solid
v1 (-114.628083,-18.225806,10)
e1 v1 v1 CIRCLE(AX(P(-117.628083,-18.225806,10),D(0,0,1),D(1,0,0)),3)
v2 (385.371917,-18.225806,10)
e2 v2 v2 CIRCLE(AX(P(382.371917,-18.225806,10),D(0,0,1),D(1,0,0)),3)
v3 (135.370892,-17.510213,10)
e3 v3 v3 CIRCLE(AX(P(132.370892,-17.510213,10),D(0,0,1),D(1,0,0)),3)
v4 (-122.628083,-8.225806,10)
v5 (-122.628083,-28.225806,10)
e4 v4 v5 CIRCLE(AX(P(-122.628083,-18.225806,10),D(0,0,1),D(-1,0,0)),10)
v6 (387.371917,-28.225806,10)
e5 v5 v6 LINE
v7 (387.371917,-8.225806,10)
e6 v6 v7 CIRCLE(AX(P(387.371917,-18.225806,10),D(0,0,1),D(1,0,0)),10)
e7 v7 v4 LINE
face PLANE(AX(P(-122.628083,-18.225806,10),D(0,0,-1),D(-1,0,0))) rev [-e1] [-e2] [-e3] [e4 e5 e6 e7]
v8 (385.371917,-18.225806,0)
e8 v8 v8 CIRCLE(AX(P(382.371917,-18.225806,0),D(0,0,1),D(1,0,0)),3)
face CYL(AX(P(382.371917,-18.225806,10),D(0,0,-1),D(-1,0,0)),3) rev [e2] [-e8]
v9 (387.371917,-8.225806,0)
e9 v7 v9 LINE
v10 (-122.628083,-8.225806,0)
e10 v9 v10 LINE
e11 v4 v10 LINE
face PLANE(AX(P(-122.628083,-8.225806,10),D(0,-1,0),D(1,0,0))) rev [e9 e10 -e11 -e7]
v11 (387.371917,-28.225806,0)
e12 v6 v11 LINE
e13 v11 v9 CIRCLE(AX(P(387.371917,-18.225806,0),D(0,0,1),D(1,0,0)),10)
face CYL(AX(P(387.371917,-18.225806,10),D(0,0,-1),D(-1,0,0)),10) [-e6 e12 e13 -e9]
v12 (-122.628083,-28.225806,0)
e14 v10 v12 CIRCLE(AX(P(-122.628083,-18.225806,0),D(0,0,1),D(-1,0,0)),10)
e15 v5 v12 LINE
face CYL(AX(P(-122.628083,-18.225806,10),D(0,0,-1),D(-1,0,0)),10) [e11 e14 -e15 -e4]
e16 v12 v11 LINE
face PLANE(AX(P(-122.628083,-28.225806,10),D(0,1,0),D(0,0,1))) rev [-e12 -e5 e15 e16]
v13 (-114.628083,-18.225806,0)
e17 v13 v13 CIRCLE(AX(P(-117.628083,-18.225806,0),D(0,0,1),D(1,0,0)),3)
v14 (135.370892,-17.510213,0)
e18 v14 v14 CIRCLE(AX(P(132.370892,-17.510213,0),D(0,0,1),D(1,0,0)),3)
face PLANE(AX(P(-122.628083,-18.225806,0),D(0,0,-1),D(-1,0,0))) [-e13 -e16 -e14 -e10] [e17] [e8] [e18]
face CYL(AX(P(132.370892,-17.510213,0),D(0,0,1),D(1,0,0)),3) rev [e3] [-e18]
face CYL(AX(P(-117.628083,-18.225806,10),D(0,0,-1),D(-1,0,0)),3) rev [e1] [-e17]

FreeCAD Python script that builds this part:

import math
import FreeCAD as App
import Part
import Sketcher

doc = App.newDocument("Part")
params = doc.addObject("Spreadsheet::Sheet", "Params")
for row, (alias, value) in enumerate([
    ("sketch1_diameter", "6 mm"),
    ("sketch1_radius", "10 mm"),
    ("sketch1_width", "510 mm"),
    ("pad1_length", "10 mm"),
    ("sketch2_diameter", "6 mm"),
    ("pocket1_length", "10 mm"),
], start=1):
    params.set(f"A{row}", alias)
    params.set(f"B{row}", "=" + value)
    params.setAlias(f"B{row}", alias)

body = doc.addObject("PartDesign::Body", "Body")

# Sketch on XY plane
sketch1 = doc.addObject("Sketcher::SketchObject", "Sketch")
body.addObject(sketch1)
sketch1.AttachmentSupport = (doc.XY_Plane, [""])
sketch1.MapMode = "FlatFace"
sketch1.addGeometry([
    Part.LineSegment(App.Vector(387.371917, -8.225806, 0), App.Vector(-122.628083, -8.225806, 0)),  # 0
    Part.ArcOfCircle(Part.Circle(App.Vector(-122.628083, -18.225806, 0), App.Vector(0, 0, 1), 10), math.radians(90), math.radians(270)),  # 1
    Part.LineSegment(App.Vector(-122.628083, -28.225806, 0), App.Vector(387.371917, -28.225806, 0)),  # 2
    Part.ArcOfCircle(Part.Circle(App.Vector(387.371917, -18.225806, 0), App.Vector(0, 0, 1), 10), math.radians(-90), math.radians(90)),  # 3
    Part.Circle(App.Vector(382.371917, -18.225806, 0), App.Vector(0, 0, 1), 3),  # 4
    Part.Circle(App.Vector(-117.628083, -18.225806, 0), App.Vector(0, 0, 1), 3),  # 5
], False)
sketch1.addConstraint([
    Sketcher.Constraint("Tangent", 0, 2, 1, 1),
    Sketcher.Constraint("Tangent", 1, 2, 2, 1),
    Sketcher.Constraint("Tangent", 2, 2, 3, 1),
    Sketcher.Constraint("Tangent", 3, 2, 0, 1),
    Sketcher.Constraint("Horizontal", 0),
    Sketcher.Constraint("Horizontal", 2),
    Sketcher.Constraint("Equal", 4, 5),
    Sketcher.Constraint("Horizontal", 3, 3, 4, 3),
    Sketcher.Constraint("Horizontal", 4, 3, 5, 3),
    Sketcher.Constraint("Diameter", 4, 6.0),
    Sketcher.Constraint("Radius", 1, 10.0),
    Sketcher.Constraint("DistanceX", 0, 2, 0, 1, 510.0),
    Sketcher.Constraint("DistanceX", 4, 3, 3, 3, 5.0),
    Sketcher.Constraint("DistanceX", 1, 3, 5, 3, 5.0),
    Sketcher.Constraint("DistanceX", 1, 3, -1, 1, 122.628083),
    Sketcher.Constraint("DistanceY", 1, 3, -1, 1, 18.225806),
])
sketch1.setExpression("Constraints[9]", "Params.sketch1_diameter")
sketch1.setExpression("Constraints[10]", "Params.sketch1_radius")
sketch1.setExpression("Constraints[11]", "Params.sketch1_width")
pad1 = doc.addObject("PartDesign::Pad", "Pad")
body.addObject(pad1)
pad1.Profile = sketch1
pad1.setExpression("Length", "Params.pad1_length")

# Sketch on XY plane
sketch2 = doc.addObject("Sketcher::SketchObject", "Sketch001")
body.addObject(sketch2)
sketch2.AttachmentSupport = (doc.XY_Plane, [""])
sketch2.MapMode = "FlatFace"
sketch2.addGeometry([
    Part.Circle(App.Vector(132.370892, -17.510213, 0), App.Vector(0, 0, 1), 3),
    Part.Circle(App.Vector(-117.628083, -18.225806, 0), App.Vector(0, 0, 1), 3),
], False)
sketch2.addConstraint([
    Sketcher.Constraint("Equal", 0, 1),
    Sketcher.Constraint("Diameter", 0, 6.0),
    Sketcher.Constraint("DistanceX", -1, 1, 0, 3, 132.370892),
    Sketcher.Constraint("DistanceY", 0, 3, -1, 1, 17.510213),
    Sketcher.Constraint("DistanceX", 1, 3, -1, 1, 117.628083),
    Sketcher.Constraint("DistanceY", 1, 3, -1, 1, 18.225806),
])
sketch2.setExpression("Constraints[1]", "Params.sketch2_diameter")
pocket1 = doc.addObject("PartDesign::Pocket", "Pocket")
body.addObject(pocket1)
pocket1.Profile = sketch2
pocket1.setExpression("Length", "Params.pocket1_length")
pocket1.Reversed = True

doc.recompute()
